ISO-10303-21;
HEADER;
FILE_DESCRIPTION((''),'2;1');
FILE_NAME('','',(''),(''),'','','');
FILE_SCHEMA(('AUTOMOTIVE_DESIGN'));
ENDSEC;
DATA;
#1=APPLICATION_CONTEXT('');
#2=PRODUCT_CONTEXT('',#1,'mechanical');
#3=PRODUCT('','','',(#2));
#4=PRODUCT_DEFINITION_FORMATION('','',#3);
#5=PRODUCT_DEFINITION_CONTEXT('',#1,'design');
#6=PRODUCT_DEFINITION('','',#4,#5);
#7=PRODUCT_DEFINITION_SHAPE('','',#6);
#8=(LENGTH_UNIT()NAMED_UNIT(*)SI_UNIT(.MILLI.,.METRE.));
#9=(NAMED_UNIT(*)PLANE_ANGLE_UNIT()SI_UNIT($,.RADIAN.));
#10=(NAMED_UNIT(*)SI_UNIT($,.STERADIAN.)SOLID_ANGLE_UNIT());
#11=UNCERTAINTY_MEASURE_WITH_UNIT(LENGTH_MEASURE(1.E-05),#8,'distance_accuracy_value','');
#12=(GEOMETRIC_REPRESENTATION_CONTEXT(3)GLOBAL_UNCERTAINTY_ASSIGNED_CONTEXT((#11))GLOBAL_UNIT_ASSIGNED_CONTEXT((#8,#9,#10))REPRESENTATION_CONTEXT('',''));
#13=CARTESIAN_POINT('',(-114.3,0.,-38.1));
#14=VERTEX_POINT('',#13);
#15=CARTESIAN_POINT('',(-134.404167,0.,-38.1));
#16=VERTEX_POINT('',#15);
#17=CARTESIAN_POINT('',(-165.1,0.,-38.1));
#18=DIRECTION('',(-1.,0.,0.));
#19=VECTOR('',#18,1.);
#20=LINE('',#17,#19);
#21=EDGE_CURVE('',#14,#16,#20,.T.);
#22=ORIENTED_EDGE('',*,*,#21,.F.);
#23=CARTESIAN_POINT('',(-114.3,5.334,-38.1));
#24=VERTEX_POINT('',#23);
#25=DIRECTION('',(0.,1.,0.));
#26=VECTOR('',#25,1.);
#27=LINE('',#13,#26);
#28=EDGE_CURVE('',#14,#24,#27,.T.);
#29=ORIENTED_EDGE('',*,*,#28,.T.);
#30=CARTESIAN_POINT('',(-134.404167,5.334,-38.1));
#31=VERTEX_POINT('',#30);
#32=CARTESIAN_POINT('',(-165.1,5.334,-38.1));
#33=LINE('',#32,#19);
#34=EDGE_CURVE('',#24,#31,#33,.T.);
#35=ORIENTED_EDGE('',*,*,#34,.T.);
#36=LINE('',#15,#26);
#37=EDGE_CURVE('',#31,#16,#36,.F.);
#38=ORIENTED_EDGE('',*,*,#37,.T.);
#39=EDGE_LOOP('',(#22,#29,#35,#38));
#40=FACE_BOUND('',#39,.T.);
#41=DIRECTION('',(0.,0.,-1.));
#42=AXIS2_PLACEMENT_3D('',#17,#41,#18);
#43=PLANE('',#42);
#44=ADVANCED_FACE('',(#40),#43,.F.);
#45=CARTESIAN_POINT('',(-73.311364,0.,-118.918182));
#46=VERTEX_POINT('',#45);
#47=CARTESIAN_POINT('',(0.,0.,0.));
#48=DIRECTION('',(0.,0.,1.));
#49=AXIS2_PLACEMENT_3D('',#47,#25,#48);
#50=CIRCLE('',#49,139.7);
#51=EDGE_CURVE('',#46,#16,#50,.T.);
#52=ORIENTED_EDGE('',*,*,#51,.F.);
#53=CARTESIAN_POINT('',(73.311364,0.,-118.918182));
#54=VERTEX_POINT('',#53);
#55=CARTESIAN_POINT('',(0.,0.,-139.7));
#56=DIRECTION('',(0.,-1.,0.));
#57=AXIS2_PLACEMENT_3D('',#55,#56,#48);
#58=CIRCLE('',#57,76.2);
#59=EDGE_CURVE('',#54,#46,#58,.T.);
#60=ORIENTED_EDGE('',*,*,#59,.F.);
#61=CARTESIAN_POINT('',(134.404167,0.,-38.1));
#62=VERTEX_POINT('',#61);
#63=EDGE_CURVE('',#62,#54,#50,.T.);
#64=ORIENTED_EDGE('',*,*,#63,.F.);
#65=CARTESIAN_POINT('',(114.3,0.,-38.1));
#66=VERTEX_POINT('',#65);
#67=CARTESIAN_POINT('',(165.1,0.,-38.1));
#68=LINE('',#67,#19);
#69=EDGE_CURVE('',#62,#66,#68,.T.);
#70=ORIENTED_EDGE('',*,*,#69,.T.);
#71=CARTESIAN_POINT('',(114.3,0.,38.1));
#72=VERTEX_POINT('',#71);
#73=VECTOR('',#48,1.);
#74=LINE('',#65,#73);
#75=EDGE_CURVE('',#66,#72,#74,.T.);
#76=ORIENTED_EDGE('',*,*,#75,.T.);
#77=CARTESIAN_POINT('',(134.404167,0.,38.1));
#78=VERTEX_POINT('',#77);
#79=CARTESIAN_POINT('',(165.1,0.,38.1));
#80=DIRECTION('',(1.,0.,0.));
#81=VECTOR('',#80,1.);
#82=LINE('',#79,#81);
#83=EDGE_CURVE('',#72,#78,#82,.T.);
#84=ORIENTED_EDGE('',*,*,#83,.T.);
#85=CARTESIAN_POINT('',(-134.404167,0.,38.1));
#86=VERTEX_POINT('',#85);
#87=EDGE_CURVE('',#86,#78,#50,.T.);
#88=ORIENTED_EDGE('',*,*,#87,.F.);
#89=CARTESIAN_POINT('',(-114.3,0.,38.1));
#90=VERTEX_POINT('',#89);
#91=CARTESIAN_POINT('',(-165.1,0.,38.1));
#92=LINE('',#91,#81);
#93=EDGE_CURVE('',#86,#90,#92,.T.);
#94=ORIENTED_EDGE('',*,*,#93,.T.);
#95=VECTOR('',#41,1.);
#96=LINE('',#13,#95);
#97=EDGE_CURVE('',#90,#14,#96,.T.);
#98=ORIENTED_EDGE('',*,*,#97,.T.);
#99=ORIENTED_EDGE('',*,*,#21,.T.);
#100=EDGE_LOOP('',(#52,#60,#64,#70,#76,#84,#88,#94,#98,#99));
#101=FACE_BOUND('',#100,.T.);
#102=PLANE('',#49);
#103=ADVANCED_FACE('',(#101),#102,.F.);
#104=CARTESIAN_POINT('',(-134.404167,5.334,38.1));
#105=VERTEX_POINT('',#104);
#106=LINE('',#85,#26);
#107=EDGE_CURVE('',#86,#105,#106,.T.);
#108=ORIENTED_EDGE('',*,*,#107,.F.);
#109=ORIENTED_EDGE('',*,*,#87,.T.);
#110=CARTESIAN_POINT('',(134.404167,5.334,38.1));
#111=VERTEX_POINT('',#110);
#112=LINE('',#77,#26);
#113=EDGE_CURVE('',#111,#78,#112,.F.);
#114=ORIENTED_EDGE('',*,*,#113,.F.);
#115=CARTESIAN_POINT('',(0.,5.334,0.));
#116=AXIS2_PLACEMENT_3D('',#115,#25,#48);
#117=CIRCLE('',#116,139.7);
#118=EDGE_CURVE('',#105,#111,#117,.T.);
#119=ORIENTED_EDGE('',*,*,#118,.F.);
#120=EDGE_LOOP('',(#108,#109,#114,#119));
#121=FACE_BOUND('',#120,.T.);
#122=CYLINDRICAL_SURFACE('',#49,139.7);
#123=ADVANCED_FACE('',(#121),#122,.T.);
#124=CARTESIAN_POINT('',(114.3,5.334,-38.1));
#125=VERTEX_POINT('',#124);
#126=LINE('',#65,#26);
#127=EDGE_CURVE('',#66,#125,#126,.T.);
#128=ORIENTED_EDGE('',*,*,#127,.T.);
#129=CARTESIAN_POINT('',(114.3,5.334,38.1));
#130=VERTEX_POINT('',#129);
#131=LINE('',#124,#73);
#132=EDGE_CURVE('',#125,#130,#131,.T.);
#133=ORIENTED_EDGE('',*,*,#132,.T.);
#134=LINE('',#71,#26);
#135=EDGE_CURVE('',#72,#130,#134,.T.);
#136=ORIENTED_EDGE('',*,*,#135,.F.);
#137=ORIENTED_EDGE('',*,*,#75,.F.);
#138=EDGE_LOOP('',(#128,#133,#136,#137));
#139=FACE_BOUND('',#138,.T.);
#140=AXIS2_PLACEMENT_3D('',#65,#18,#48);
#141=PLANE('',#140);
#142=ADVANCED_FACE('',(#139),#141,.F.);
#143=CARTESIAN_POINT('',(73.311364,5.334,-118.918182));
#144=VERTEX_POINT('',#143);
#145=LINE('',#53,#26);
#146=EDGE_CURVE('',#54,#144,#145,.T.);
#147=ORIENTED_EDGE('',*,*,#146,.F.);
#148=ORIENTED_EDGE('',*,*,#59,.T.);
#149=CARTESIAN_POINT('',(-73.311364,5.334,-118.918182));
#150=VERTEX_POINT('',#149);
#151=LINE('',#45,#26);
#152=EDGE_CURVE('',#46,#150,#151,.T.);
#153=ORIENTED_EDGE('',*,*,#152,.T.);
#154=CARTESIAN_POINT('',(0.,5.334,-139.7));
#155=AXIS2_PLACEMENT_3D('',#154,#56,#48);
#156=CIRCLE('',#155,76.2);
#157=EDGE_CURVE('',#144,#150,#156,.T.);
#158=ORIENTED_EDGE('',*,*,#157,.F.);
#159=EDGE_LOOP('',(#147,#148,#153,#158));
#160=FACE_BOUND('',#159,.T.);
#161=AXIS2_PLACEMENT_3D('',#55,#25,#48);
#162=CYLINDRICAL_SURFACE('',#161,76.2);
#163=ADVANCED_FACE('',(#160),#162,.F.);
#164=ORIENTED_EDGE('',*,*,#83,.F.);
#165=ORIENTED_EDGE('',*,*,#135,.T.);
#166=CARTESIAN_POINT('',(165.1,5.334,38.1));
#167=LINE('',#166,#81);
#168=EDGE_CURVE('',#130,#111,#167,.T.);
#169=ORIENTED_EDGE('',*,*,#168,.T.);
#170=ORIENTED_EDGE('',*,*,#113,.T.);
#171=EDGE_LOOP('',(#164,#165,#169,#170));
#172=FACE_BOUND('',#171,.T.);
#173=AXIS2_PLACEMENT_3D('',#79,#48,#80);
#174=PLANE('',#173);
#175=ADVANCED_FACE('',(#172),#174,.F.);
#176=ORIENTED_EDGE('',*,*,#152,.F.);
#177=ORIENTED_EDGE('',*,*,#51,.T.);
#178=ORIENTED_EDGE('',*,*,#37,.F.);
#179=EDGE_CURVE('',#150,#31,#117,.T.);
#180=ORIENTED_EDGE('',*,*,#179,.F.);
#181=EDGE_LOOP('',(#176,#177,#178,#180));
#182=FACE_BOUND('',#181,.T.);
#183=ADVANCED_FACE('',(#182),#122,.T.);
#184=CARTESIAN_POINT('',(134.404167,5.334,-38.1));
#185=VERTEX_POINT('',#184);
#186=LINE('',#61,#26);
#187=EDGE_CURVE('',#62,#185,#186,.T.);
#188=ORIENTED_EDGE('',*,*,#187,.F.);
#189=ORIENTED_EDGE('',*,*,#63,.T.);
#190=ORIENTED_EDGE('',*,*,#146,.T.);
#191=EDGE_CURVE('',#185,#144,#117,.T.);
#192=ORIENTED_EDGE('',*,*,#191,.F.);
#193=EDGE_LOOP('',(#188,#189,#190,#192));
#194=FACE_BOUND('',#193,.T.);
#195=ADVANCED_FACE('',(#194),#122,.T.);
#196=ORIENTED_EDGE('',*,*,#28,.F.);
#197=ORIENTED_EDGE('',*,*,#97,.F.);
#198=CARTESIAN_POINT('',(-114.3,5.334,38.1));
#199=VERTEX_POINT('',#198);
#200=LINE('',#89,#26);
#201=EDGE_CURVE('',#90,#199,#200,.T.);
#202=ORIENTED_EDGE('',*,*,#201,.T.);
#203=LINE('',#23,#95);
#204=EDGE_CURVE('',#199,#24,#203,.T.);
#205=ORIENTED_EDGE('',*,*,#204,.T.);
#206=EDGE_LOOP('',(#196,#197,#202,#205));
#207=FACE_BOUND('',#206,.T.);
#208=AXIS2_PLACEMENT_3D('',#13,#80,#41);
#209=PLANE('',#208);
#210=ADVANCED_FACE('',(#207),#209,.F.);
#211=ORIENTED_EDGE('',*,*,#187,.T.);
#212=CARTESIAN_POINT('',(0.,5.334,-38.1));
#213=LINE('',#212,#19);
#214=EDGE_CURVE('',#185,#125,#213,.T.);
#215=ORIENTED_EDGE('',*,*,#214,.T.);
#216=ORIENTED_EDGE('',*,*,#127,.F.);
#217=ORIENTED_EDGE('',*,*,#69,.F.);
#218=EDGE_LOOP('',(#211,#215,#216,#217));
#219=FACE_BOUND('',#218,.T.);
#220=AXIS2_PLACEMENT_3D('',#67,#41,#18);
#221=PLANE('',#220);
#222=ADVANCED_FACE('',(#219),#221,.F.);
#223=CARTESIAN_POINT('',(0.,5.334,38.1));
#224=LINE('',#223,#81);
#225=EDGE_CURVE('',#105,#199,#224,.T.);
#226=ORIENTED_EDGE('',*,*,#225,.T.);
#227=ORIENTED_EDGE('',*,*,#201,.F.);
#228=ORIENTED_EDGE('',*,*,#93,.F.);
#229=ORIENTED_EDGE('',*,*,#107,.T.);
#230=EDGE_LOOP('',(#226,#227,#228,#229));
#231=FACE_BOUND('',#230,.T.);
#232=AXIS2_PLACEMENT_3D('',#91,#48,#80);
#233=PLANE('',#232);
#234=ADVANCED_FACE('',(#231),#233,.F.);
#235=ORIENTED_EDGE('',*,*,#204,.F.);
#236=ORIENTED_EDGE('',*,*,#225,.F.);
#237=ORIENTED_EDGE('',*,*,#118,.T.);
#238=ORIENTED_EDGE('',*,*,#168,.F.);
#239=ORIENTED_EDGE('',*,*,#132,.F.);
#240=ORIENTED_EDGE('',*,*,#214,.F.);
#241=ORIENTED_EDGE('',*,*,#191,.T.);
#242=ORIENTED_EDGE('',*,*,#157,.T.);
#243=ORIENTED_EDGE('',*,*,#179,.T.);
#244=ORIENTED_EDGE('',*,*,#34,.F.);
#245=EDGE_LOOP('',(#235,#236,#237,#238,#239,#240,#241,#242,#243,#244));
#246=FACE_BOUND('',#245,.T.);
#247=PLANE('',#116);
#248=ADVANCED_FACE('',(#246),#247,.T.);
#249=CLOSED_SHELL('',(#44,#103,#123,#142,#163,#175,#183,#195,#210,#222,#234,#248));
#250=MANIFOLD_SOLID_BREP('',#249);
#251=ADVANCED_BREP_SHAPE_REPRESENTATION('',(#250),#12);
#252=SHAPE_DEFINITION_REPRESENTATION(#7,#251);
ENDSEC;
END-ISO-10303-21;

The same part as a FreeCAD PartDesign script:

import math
import FreeCAD as App
import Part
import Sketcher
Q = App.Units.Quantity


def add_polygon(sketch, points):
    """Adds a closed chain of lines whose ends are joined by coincident constraints."""
    first, n = sketch.GeometryCount, len(points)
    for a, b in zip(points, points[1:] + points[:1]):
        sketch.addGeometry(Part.LineSegment(App.Vector(*a, 0), App.Vector(*b, 0)), False)
    for i in range(n):
        sketch.addConstraint(Sketcher.Constraint("Coincident", first + i, 2, first + (i + 1) % n, 1))

doc = App.newDocument("Part")
body = doc.addObject("PartDesign::Body", "Body")

# Sketch on XZ plane
sketch1 = body.newObject("Sketcher::SketchObject", "Sketch")
sketch1.AttachmentSupport = (doc.getObject("XZ_Plane"), [""])
sketch1.MapMode = "FlatFace"
add_polygon(sketch1, [(-140, -140), (-140, 140), (140, 140), (140, -140)])  # lines 0-3
sketch1.addConstraint([
    Sketcher.Constraint("Vertical", 0),
    Sketcher.Constraint("Horizontal", 1),
    Sketcher.Constraint("Vertical", 2),
    Sketcher.Constraint("Horizontal", 3),
    Sketcher.Constraint("Symmetric", 0, 2, 2, 2, -1, 1),
    Sketcher.Constraint("Equal", 3, 0),
    Sketcher.Constraint("DistanceX", 1, 1, 1, 2, Q("11 in")),
])
pad1 = body.newObject("PartDesign::Pad", "Pad")
pad1.Profile = sketch1
pad1.Length = Q("0.21 in")
pad1.Reversed = True

# Sketch on XZ plane
sketch2 = body.newObject("Sketcher::SketchObject", "Sketch001")
sketch2.AttachmentSupport = (doc.getObject("XZ_Plane"), [""])
sketch2.MapMode = "FlatFace"
sketch2.AttachmentOffset = App.Placement(App.Vector(0, 0, -0.21 * 25.4), App.Rotation())
add_polygon(sketch2, [(-180, -180), (-180, 180), (180, 180), (180, -180)])  # lines 0-3
sketch2.addGeometry(Part.ArcOfCircle(Part.Circle(App.Vector(0, 0, 0), App.Vector(0, 0, 1), 140), math.radians(-58), math.radians(238)), False)  # 4
sketch2.addGeometry(Part.ArcOfCircle(Part.Circle(App.Vector(0, -140, 0), App.Vector(0, 0, 1), 76), math.radians(16), math.radians(164)), False)  # 5
sketch2.addConstraint([
    Sketcher.Constraint("Coincident", 4, 1, 5, 1),
    Sketcher.Constraint("Coincident", 5, 2, 4, 2),
    Sketcher.Constraint("Vertical", 0),
    Sketcher.Constraint("Horizontal", 1),
    Sketcher.Constraint("Vertical", 2),
    Sketcher.Constraint("Horizontal", 3),
    Sketcher.Constraint("Coincident", 4, 3, -1, 1),
    Sketcher.Constraint("Symmetric", 0, 2, 2, 2, -1, 1),
    Sketcher.Constraint("PointOnObject", 5, 3, -2),
    Sketcher.Constraint("Equal", 3, 0),
    Sketcher.Constraint("Radius", 5, Q("3 in")),
    Sketcher.Constraint("Radius", 4, Q("5.5 in")),
    Sketcher.Constraint("DistanceY", 5, 3, -1, 1, Q("5.5 in")),
    Sketcher.Constraint("DistanceX", 1, 1, 1, 2, Q("360.434 mm")),
])
pocket1 = body.newObject("PartDesign::Pocket", "Pocket")
pocket1.Profile = sketch2
pocket1.Type = "ThroughAll"
pocket1.Reversed = True

# Sketch on XZ plane
sketch3 = body.newObject("Sketcher::SketchObject", "Sketch002")
sketch3.AttachmentSupport = (doc.getObject("XZ_Plane"), [""])
sketch3.MapMode = "FlatFace"
sketch3.AttachmentOffset = App.Placement(App.Vector(0, 0, -0.21 * 25.4), App.Rotation())
add_polygon(sketch3, [(-165, -38), (-165, 38), (-114, 38), (-114, -38)])  # lines 0-3
add_polygon(sketch3, [(114, -38), (114, 38), (165, 38), (165, -38)])  # lines 4-7
sketch3.addConstraint([
    Sketcher.Constraint("Vertical", 0),
    Sketcher.Constraint("Horizontal", 1),
    Sketcher.Constraint("Vertical", 2),
    Sketcher.Constraint("Horizontal", 3),
    Sketcher.Constraint("Vertical", 4),
    Sketcher.Constraint("Horizontal", 5),
    Sketcher.Constraint("Vertical", 6),
    Sketcher.Constraint("Horizontal", 7),
    Sketcher.Constraint("Symmetric", 2, 2, 4, 2, -1, 1),
    Sketcher.Constraint("Symmetric", 0, 2, 6, 2, -1, 1),
    Sketcher.Constraint("Horizontal", 1, 2, 4, 2),
    Sketcher.Constraint("DistanceX", 1, 1, 1, 2, Q("2 in")),
    Sketcher.Constraint("DistanceY", 0, 1, 0, 2, Q("3 in")),
    Sketcher.Constraint("DistanceX", 1, 2, 4, 2, Q("9 in")),
])
pocket2 = body.newObject("PartDesign::Pocket", "Pocket001")
pocket2.Profile = sketch3
pocket2.Type = "ThroughAll"
pocket2.Reversed = True

doc.recompute()
